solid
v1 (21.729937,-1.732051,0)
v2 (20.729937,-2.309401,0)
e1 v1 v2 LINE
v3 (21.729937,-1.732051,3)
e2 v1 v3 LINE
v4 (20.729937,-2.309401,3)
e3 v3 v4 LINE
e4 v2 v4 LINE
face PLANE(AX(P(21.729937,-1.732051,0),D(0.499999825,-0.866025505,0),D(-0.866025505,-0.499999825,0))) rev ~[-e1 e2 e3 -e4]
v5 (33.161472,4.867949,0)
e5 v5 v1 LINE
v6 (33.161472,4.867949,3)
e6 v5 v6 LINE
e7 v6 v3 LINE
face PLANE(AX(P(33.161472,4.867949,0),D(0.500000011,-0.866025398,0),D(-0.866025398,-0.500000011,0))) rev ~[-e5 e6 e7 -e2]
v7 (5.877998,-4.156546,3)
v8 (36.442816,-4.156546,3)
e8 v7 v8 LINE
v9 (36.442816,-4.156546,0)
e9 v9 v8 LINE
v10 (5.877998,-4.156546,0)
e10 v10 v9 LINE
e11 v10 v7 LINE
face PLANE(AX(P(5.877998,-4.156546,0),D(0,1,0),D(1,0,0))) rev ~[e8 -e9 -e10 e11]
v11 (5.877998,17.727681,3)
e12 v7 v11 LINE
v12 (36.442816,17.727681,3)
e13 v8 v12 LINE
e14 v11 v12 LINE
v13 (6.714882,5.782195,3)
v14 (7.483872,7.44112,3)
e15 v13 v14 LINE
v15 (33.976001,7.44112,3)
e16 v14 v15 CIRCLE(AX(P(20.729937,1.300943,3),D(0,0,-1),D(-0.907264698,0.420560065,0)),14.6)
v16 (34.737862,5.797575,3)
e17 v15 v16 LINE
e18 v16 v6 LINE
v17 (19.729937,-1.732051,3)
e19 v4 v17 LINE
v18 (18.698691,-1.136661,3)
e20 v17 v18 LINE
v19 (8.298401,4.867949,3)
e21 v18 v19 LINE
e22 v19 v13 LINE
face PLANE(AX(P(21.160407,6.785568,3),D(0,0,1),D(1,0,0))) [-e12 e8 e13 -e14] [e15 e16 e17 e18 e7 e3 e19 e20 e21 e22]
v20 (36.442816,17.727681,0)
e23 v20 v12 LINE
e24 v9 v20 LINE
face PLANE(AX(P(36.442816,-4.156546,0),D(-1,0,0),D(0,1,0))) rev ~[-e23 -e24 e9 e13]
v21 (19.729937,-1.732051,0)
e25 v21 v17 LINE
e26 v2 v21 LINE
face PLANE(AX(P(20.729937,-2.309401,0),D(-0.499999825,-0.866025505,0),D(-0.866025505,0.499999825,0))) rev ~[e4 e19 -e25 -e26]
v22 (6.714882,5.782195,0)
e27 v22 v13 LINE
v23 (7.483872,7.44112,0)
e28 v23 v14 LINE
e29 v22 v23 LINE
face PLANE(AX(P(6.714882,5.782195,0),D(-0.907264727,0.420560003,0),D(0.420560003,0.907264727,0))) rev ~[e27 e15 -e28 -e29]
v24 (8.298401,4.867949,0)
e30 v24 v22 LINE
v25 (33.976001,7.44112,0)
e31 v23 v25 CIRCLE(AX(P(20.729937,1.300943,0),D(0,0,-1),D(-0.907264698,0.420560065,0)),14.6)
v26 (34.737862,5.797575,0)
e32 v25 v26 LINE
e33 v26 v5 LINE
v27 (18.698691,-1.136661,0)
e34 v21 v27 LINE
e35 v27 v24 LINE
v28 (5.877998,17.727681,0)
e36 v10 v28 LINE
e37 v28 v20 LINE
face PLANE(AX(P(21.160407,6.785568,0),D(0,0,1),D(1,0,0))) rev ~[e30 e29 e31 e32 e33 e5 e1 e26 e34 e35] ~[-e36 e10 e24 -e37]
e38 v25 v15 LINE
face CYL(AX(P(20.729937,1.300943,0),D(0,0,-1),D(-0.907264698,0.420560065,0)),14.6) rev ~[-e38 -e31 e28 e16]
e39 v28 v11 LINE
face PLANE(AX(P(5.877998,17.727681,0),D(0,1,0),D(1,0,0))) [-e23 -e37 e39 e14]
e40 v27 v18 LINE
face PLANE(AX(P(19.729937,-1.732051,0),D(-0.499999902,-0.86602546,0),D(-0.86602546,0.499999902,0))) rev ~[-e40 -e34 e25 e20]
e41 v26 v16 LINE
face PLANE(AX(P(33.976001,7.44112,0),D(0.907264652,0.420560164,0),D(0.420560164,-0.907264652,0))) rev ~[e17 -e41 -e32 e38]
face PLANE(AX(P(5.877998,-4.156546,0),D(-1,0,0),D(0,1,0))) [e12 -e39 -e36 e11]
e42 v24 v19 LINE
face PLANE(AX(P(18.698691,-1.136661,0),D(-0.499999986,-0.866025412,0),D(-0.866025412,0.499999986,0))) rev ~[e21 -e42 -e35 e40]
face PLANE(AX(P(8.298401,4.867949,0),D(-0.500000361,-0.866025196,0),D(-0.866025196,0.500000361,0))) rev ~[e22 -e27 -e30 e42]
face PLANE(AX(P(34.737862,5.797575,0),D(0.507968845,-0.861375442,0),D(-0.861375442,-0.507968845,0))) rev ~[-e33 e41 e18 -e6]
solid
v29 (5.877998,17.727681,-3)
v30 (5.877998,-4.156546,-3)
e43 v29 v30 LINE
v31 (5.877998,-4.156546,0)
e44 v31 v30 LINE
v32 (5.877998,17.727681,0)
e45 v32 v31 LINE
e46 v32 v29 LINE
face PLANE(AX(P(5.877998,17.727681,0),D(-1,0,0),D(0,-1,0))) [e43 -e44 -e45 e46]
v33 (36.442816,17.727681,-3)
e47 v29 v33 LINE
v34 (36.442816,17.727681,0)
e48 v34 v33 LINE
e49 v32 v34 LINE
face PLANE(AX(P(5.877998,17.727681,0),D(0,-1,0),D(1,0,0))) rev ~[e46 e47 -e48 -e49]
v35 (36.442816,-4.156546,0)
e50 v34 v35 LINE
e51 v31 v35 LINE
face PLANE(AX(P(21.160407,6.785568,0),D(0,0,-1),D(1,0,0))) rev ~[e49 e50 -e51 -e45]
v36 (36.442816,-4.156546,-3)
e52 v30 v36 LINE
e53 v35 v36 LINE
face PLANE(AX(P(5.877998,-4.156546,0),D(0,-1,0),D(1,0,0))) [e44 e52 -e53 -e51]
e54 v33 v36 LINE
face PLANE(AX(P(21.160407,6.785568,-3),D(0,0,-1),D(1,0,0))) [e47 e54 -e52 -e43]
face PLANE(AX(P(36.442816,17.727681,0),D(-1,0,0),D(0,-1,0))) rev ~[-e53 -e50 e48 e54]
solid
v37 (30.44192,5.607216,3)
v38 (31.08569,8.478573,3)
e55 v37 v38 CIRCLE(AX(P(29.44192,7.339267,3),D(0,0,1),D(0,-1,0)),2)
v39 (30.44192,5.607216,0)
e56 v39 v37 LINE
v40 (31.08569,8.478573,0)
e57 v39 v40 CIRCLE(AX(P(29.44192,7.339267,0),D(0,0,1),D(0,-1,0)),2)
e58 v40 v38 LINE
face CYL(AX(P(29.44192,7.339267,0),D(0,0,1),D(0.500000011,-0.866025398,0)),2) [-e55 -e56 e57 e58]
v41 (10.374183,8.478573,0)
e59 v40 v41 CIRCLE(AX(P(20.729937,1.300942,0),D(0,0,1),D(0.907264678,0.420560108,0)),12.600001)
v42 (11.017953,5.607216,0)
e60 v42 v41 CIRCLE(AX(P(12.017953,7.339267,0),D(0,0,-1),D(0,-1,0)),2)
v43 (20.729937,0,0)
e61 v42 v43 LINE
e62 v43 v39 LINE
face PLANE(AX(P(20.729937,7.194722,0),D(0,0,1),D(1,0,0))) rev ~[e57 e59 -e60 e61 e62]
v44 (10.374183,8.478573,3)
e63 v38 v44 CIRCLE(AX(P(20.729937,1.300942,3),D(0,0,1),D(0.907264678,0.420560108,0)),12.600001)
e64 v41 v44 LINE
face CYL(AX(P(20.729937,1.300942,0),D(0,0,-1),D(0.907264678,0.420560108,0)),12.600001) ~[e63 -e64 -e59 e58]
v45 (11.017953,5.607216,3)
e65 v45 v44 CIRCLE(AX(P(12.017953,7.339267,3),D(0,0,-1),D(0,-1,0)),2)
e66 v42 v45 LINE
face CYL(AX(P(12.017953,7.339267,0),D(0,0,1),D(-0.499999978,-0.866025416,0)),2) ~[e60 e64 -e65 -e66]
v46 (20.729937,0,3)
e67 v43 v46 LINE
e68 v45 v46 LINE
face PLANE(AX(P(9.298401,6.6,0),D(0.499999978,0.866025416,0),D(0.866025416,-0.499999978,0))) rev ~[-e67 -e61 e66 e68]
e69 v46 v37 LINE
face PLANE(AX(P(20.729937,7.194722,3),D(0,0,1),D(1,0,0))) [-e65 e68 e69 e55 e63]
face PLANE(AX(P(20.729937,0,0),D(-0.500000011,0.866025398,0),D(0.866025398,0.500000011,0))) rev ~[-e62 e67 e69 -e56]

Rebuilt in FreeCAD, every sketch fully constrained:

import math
import FreeCAD as App
import Part
import Sketcher

V = App.Vector
Q = App.Units.Quantity


def edges_at(feature, points):
    """Names of the edges that pass closest to the given points."""
    edges = feature.Shape.Edges
    near = lambda p: min(range(len(edges)), key=lambda i: edges[i].distToShape(Part.Vertex(*p))[0])
    return sorted({f"Edge{near(p) + 1}" for p in points})

doc = App.newDocument("Part")
params = doc.addObject("Spreadsheet::Sheet", "Params")
for row, (alias, value) in enumerate([
    ("sketch1_radius", "14.6 mm"),
    ("sketch1_radius2", "12.600001 mm"),
    ("sketch1_length", "13.2 mm"),
    ("pad1_length", "3 mm"),
    ("fillet_radius", "2 mm"),
    ("fillet2_radius", "2 mm"),
    ("pad2_length", "3 mm"),
], start=1):
    params.set(f"A{row}", alias)
    params.set(f"B{row}", "=" + value)
    params.setAlias(f"B{row}", alias)

body = doc.addObject("PartDesign::Body", "Body")
body.AllowCompound = True

# Sketch on XY plane
sketch1 = body.newObject("Sketcher::SketchObject", "Sketch")
sketch1.AttachmentSupport = (doc.getObject("XY_Plane"), [""])
sketch1.MapMode = "FlatFace"
sketch1.addGeometry(Part.LineSegment(V(5.877998, 17.727681, 0), V(5.877998, -4.156546, 0)), False)
sketch1.addGeometry(Part.LineSegment(V(5.877998, -4.156546, 0), V(36.442816, -4.156546, 0)), False)
sketch1.addGeometry(Part.LineSegment(V(36.442816, -4.156546, 0), V(36.442816, 17.727681, 0)), False)
sketch1.addGeometry(Part.LineSegment(V(36.442816, 17.727681, 0), V(5.877998, 17.727681, 0)), False)
sketch1.addGeometry(Part.LineSegment(V(6.714882, 5.782195, 0), V(7.483872, 7.44112, 0)), False)
sketch1.addGeometry(Part.ArcOfCircle(Part.Circle(V(20.729937, 1.300943, 0), V(0, 0, 1), 14.6), math.radians(24.869952), math.radians(155.130048)), False)
sketch1.addGeometry(Part.LineSegment(V(33.976001, 7.44112, 0), V(34.737862, 5.797575, 0)), False)
sketch1.addGeometry(Part.LineSegment(V(34.737862, 5.797575, 0), V(33.161472, 4.867949, 0)), False)
sketch1.addGeometry(Part.LineSegment(V(33.161472, 4.867949, 0), V(21.729937, -1.732051, 0)), False)
sketch1.addGeometry(Part.LineSegment(V(21.729937, -1.732051, 0), V(20.729937, -2.309401, 0)), False)
sketch1.addGeometry(Part.LineSegment(V(20.729937, -2.309401, 0), V(19.729937, -1.732051, 0)), False)
sketch1.addGeometry(Part.LineSegment(V(19.729937, -1.732051, 0), V(18.698691, -1.136661, 0)), False)
sketch1.addGeometry(Part.LineSegment(V(18.698691, -1.136661, 0), V(8.298401, 4.867949, 0)), False)
sketch1.addGeometry(Part.LineSegment(V(8.298401, 4.867949, 0), V(6.714882, 5.782195, 0)), False)
sketch1.addGeometry(Part.LineSegment(V(9.298401, 6.6, 0), V(20.729937, 0, 0)), False)
sketch1.addGeometry(Part.LineSegment(V(20.729937, 0, 0), V(32.161472, 6.6, 0)), False)
sketch1.addGeometry(Part.ArcOfCircle(Part.Circle(V(20.729937, 1.300942, 0), V(0, 0, 1), 12.600001), math.radians(24.869954), math.radians(155.130046)), False)
sketch1.addConstraint(Sketcher.Constraint("Coincident", 0, 2, 1, 1))
sketch1.addConstraint(Sketcher.Constraint("Coincident", 1, 2, 2, 1))
sketch1.addConstraint(Sketcher.Constraint("Coincident", 2, 2, 3, 1))
sketch1.addConstraint(Sketcher.Constraint("Coincident", 3, 2, 0, 1))
sketch1.addConstraint(Sketcher.Constraint("Tangent", 4, 2, 5, 2))
sketch1.addConstraint(Sketcher.Constraint("Tangent", 5, 1, 6, 1))
sketch1.addConstraint(Sketcher.Constraint("Coincident", 6, 2, 7, 1))
sketch1.addConstraint(Sketcher.Constraint("Coincident", 7, 2, 8, 1))
sketch1.addConstraint(Sketcher.Constraint("Coincident", 8, 2, 9, 1))
sketch1.addConstraint(Sketcher.Constraint("Coincident", 9, 2, 10, 1))
sketch1.addConstraint(Sketcher.Constraint("Coincident", 10, 2, 11, 1))
sketch1.addConstraint(Sketcher.Constraint("Coincident", 11, 2, 12, 1))
sketch1.addConstraint(Sketcher.Constraint("Coincident", 12, 2, 13, 1))
sketch1.addConstraint(Sketcher.Constraint("Coincident", 13, 2, 4, 1))
sketch1.addConstraint(Sketcher.Constraint("Coincident", 14, 2, 15, 1))
sketch1.addConstraint(Sketcher.Constraint("Coincident", 15, 2, 16, 1))
sketch1.addConstraint(Sketcher.Constraint("Coincident", 16, 2, 14, 1))
sketch1.addConstraint(Sketcher.Constraint("Vertical", 0))
sketch1.addConstraint(Sketcher.Constraint("Horizontal", 1))
sketch1.addConstraint(Sketcher.Constraint("Vertical", 2))
sketch1.addConstraint(Sketcher.Constraint("Horizontal", 3))
sketch1.addConstraint(Sketcher.Constraint("Coincident", 16, 3, 5, 3))
sketch1.addConstraint(Sketcher.Constraint("PointOnObject", 14, 2, -1))
sketch1.addConstraint(Sketcher.Constraint("Parallel", 8, 9))
sketch1.addConstraint(Sketcher.Constraint("Parallel", 10, 11))
sketch1.addConstraint(Sketcher.Constraint("Parallel", 11, 12))
sketch1.addConstraint(Sketcher.Constraint("Parallel", 12, 13))
sketch1.addConstraint(Sketcher.Constraint("Parallel", 13, 14))
sketch1.addConstraint(Sketcher.Constraint("Parallel", 9, 15))
sketch1.addConstraint(Sketcher.Constraint("Horizontal", 4, 2, 5, 1))
sketch1.addConstraint(Sketcher.Constraint("Horizontal", 8, 2, 10, 2))
sketch1.addConstraint(Sketcher.Constraint("Horizontal", 7, 2, 12, 2))
sketch1.addConstraint(Sketcher.Constraint("Horizontal", 15, 2, 16, 2))
sketch1.addConstraint(Sketcher.Constraint("Vertical", 16, 3, 9, 2))
sketch1.addConstraint(Sketcher.Constraint("Vertical", 9, 2, 14, 2))
sketch1.addConstraint(Sketcher.Constraint("Equal", 4, 13))
sketch1.addConstraint(Sketcher.Constraint("Equal", 8, 14))
sketch1.addConstraint(Sketcher.Constraint("Radius", 5, 14.6))
sketch1.addConstraint(Sketcher.Constraint("Radius", 16, 12.600001))
sketch1.addConstraint(Sketcher.Constraint("Angle", 8, Q("-149.999999 deg")))
sketch1.addConstraint(Sketcher.Constraint("DistanceX", 16, 3, 8, 2, 1.0))
sketch1.addConstraint(Sketcher.Constraint("Distance", 8, 13.2))
sketch1.addConstraint(Sketcher.Constraint("DistanceX", -1, 1, 5, 1, 33.976001))
sketch1.addConstraint(Sketcher.Constraint("DistanceX", 1, 1, 1, 2, 30.564818))
sketch1.addConstraint(Sketcher.Constraint("DistanceY", 9, 2, -1, 1, 2.309401))
sketch1.addConstraint(Sketcher.Constraint("Distance", 6, 1.811539))
sketch1.addConstraint(Sketcher.Constraint("Distance", 11, 1.19078))
sketch1.addConstraint(Sketcher.Constraint("DistanceY", 0, 2, 0, 1, 21.884227))
sketch1.addConstraint(Sketcher.Constraint("DistanceY", -1, 1, 2, 2, 17.727681))
sketch1.addConstraint(Sketcher.Constraint("DistanceX", 0, 2, 16, 3, 14.851939))
sketch1.setExpression("Constraints[37]", "Params.sketch1_radius")
sketch1.setExpression("Constraints[38]", "Params.sketch1_radius2")
sketch1.setExpression("Constraints[41]", "Params.sketch1_length")
pad1 = body.newObject("PartDesign::Pad", "Pad")
pad1.Profile = sketch1
pad1.setExpression("Length", "Params.pad1_length")
doc.recompute()

fillet = body.newObject("PartDesign::Fillet", "Fillet")
fillet.Base = (pad1, edges_at(pad1, [(9.298, 6.6, 1.5)]))
fillet.setExpression("Radius", "Params.fillet_radius")
doc.recompute()

fillet2 = body.newObject("PartDesign::Fillet", "Fillet001")
fillet2.Base = (fillet, edges_at(fillet, [(32.161, 6.6, 1.5)]))
fillet2.setExpression("Radius", "Params.fillet2_radius")
body2 = doc.addObject("PartDesign::Body", "Body001")

# Sketch on XY plane
sketch2 = body2.newObject("Sketcher::SketchObject", "Sketch001")
sketch2.AttachmentSupport = (doc.getObject("XY_Plane001"), [""])
sketch2.MapMode = "FlatFace"
sketch2.addGeometry(Part.LineSegment(V(5.877998, -4.156546, 0), V(5.877998, 17.727681, 0)), False)
sketch2.addGeometry(Part.LineSegment(V(5.877998, 17.727681, 0), V(36.442816, 17.727681, 0)), False)
sketch2.addGeometry(Part.LineSegment(V(36.442816, 17.727681, 0), V(36.442816, -4.156546, 0)), False)
sketch2.addGeometry(Part.LineSegment(V(36.442816, -4.156546, 0), V(5.877998, -4.156546, 0)), False)
sketch2.addConstraint(Sketcher.Constraint("Coincident", 0, 2, 1, 1))
sketch2.addConstraint(Sketcher.Constraint("Coincident", 1, 2, 2, 1))
sketch2.addConstraint(Sketcher.Constraint("Coincident", 2, 2, 3, 1))
sketch2.addConstraint(Sketcher.Constraint("Coincident", 3, 2, 0, 1))
sketch2.addConstraint(Sketcher.Constraint("Vertical", 0))
sketch2.addConstraint(Sketcher.Constraint("Horizontal", 1))
sketch2.addConstraint(Sketcher.Constraint("Vertical", 2))
sketch2.addConstraint(Sketcher.Constraint("Horizontal", 3))
sketch2.addConstraint(Sketcher.Constraint("DistanceX", 1, 1, 1, 2, 30.564818))
sketch2.addConstraint(Sketcher.Constraint("DistanceY", 0, 1, 0, 2, 21.884227))
sketch2.addConstraint(Sketcher.Constraint("DistanceY", -1, 1, 0, 2, 17.727681))
sketch2.addConstraint(Sketcher.Constraint("DistanceX", -1, 1, 0, 2, 5.877998))
pad2 = body2.newObject("PartDesign::Pad", "Pad001")
pad2.Profile = sketch2
pad2.setExpression("Length", "Params.pad2_length")
pad2.Reversed = True

doc.recompute()
